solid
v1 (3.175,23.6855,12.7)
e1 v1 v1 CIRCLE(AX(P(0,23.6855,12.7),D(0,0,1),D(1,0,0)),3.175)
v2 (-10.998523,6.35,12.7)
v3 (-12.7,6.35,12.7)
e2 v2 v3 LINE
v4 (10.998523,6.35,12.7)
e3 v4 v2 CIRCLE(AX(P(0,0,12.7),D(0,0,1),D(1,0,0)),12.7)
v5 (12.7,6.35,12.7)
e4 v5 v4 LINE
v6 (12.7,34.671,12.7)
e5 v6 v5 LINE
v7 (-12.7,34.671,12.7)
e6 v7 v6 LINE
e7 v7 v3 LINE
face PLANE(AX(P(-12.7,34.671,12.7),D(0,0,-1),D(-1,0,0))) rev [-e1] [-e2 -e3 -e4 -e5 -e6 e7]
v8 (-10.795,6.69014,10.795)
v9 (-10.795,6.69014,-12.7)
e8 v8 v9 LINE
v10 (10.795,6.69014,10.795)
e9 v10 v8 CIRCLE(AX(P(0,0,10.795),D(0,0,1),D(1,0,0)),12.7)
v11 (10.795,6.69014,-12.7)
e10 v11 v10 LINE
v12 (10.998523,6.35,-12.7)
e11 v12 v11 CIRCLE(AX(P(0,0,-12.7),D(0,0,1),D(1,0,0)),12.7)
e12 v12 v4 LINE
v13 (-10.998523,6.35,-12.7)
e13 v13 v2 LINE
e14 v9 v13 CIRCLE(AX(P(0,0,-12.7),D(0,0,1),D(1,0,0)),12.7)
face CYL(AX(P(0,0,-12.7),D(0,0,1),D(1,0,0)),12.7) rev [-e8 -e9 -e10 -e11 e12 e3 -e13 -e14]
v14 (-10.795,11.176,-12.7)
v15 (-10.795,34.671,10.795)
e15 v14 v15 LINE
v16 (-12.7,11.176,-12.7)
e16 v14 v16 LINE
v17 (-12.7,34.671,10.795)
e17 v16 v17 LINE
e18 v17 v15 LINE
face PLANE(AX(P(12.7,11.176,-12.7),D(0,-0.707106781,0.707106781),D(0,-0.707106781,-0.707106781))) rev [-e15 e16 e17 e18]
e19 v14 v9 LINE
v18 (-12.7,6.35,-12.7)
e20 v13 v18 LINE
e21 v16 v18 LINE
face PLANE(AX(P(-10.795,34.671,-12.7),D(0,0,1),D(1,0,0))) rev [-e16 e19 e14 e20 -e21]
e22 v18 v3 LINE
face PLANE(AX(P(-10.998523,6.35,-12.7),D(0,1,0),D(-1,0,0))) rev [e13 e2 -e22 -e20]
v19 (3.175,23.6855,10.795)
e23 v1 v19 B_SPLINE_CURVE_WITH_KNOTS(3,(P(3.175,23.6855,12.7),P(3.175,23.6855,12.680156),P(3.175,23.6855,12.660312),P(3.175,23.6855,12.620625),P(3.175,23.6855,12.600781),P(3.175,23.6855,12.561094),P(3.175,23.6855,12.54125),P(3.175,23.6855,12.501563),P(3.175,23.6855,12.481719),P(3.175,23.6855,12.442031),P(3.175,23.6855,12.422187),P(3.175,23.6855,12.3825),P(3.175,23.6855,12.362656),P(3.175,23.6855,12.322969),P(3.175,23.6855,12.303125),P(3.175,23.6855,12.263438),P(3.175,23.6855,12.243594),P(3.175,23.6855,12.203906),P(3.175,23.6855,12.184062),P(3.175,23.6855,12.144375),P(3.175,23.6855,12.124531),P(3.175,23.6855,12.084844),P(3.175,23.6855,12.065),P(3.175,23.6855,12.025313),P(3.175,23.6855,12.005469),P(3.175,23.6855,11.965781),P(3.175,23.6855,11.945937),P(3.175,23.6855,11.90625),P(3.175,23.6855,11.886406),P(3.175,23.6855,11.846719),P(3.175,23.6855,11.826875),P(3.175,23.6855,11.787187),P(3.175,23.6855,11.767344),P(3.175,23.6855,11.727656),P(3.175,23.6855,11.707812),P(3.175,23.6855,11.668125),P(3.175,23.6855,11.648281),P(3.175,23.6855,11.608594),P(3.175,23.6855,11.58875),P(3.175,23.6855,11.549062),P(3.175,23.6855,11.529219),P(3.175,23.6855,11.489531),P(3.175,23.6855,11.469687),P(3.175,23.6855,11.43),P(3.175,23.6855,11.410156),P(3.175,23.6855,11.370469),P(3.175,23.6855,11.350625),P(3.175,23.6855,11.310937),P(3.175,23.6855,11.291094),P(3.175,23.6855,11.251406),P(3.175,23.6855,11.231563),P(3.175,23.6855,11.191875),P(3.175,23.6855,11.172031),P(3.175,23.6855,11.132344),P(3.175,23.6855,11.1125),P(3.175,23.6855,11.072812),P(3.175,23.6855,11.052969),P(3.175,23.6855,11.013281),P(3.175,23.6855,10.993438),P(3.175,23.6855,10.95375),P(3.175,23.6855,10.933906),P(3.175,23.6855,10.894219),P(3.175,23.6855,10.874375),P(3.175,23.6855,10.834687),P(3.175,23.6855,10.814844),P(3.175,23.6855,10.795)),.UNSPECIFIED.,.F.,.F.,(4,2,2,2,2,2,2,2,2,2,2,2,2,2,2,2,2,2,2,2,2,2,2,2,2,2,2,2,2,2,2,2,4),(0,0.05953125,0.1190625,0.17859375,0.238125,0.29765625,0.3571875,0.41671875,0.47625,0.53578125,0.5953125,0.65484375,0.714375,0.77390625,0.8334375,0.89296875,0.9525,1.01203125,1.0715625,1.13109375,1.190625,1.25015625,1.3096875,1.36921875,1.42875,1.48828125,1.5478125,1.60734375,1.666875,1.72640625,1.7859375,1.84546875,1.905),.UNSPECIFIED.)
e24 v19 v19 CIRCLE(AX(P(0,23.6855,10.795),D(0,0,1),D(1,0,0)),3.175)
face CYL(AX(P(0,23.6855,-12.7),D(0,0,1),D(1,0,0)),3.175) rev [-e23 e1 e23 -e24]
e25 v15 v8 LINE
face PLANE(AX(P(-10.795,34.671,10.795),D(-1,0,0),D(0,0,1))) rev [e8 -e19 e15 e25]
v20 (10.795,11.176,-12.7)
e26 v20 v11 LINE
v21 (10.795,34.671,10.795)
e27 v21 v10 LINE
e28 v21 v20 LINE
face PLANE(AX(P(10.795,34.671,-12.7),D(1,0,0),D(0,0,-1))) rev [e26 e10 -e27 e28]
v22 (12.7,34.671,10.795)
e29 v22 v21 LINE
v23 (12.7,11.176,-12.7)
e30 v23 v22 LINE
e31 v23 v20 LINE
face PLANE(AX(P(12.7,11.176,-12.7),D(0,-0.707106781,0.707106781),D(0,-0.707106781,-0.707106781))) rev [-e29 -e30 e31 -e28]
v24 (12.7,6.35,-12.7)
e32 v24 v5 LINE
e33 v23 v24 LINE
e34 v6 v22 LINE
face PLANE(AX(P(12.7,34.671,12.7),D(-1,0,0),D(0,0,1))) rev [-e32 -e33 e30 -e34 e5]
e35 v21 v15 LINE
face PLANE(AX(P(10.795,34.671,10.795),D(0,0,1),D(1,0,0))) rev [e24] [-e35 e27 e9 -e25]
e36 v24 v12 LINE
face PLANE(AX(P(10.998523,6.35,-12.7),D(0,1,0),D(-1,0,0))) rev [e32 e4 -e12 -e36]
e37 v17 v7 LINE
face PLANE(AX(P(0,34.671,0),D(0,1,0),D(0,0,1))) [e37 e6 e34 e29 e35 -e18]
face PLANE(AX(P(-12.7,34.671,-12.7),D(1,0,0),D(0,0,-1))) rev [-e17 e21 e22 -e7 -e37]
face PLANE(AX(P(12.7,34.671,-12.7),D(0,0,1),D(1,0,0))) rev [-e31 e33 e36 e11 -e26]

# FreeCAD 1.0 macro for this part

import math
import FreeCAD as App
import Part
import Sketcher
from FreeCAD import Vector
Q = App.Units.Quantity

doc = App.newDocument("Part")
body = doc.addObject("PartDesign::Body", "Body")

sketch1 = body.newObject("Sketcher::SketchObject", "Sketch")
sketch1.AttachmentSupport = (doc.getObject("XZ_Plane"), [""])
sketch1.MapMode = "FlatFace"
sketch1.addGeometry(Part.LineSegment(Vector(-12.7, -12.7, 0), Vector(-12.7, 12.7, 0)), False)
sketch1.addGeometry(Part.LineSegment(Vector(-12.7, 12.7, 0), Vector(12.7, 12.7, 0)), False)
sketch1.addGeometry(Part.LineSegment(Vector(12.7, 12.7, 0), Vector(12.7, -12.7, 0)), False)
sketch1.addGeometry(Part.LineSegment(Vector(12.7, -12.7, 0), Vector(10.795, -12.7, 0)), False)
sketch1.addGeometry(Part.LineSegment(Vector(10.795, -12.7, 0), Vector(10.795, 10.795, 0)), False)
sketch1.addGeometry(Part.LineSegment(Vector(10.795, 10.795, 0), Vector(-10.795, 10.795, 0)), False)
sketch1.addGeometry(Part.LineSegment(Vector(-10.795, 10.795, 0), Vector(-10.795, -12.7, 0)), False)
sketch1.addGeometry(Part.LineSegment(Vector(-10.795, -12.7, 0), Vector(-12.7, -12.7, 0)), False)
sketch1.addConstraint(Sketcher.Constraint("Coincident", 0, 2, 1, 1))
sketch1.addConstraint(Sketcher.Constraint("Coincident", 1, 2, 2, 1))
sketch1.addConstraint(Sketcher.Constraint("Coincident", 2, 2, 3, 1))
sketch1.addConstraint(Sketcher.Constraint("Coincident", 3, 2, 4, 1))
sketch1.addConstraint(Sketcher.Constraint("Coincident", 4, 2, 5, 1))
sketch1.addConstraint(Sketcher.Constraint("Coincident", 5, 2, 6, 1))
sketch1.addConstraint(Sketcher.Constraint("Coincident", 6, 2, 7, 1))
sketch1.addConstraint(Sketcher.Constraint("Coincident", 7, 2, 0, 1))
sketch1.addConstraint(Sketcher.Constraint("Vertical", 0))
sketch1.addConstraint(Sketcher.Constraint("Horizontal", 1))
sketch1.addConstraint(Sketcher.Constraint("Vertical", 2))
sketch1.addConstraint(Sketcher.Constraint("Horizontal", 3))
sketch1.addConstraint(Sketcher.Constraint("Vertical", 4))
sketch1.addConstraint(Sketcher.Constraint("Horizontal", 5))
sketch1.addConstraint(Sketcher.Constraint("Vertical", 6))
sketch1.addConstraint(Sketcher.Constraint("Horizontal", 7))
sketch1.addConstraint(Sketcher.Constraint("Symmetric", 0, 2, 2, 2, -1, 1))
sketch1.addConstraint(Sketcher.Constraint("Symmetric", 3, 2, 6, 2, -2))
sketch1.addConstraint(Sketcher.Constraint("Equal", 1, 0))
sketch1.addConstraint(Sketcher.Constraint("DistanceX", 1, 1, 1, 2, Q("1 in")))
sketch1.addConstraint(Sketcher.Constraint("DistanceX", 5, 2, 5, 1, Q("0.85 in")))
sketch1.addConstraint(Sketcher.Constraint("DistanceY", 4, 1, 4, 2, Q("0.925 in")))
pad1 = body.newObject("PartDesign::Pad", "Pad")
pad1.Profile = sketch1
pad1.Length = Q("1.365 in")
pad1.Reversed = True

sketch2 = body.newObject("Sketcher::SketchObject", "Sketch001")
sketch2.AttachmentSupport = (doc.getObject("YZ_Plane"), [""])
sketch2.MapMode = "FlatFace"
sketch2.AttachmentOffset = App.Placement(Vector(0, 0, -0.5 * 25.4), App.Rotation())
sketch2.addGeometry(Part.LineSegment(Vector(11.176, -12.7, 0), Vector(34.671, 10.795, 0)), False)
sketch2.addGeometry(Part.LineSegment(Vector(34.671, 10.795, 0), Vector(34.671, -12.7, 0)), False)
sketch2.addGeometry(Part.LineSegment(Vector(34.671, -12.7, 0), Vector(11.176, -12.7, 0)), False)
sketch2.addConstraint(Sketcher.Constraint("Coincident", 0, 2, 1, 1))
sketch2.addConstraint(Sketcher.Constraint("Coincident", 1, 2, 2, 1))
sketch2.addConstraint(Sketcher.Constraint("Coincident", 2, 2, 0, 1))
sketch2.addConstraint(Sketcher.Constraint("Vertical", 1))
sketch2.addConstraint(Sketcher.Constraint("Horizontal", 2))
sketch2.addConstraint(Sketcher.Constraint("Equal", 2, 1))
sketch2.addConstraint(Sketcher.Constraint("DistanceY", 1, 2, -1, 1, Q("0.5 in")))
sketch2.addConstraint(Sketcher.Constraint("DistanceX", 2, 2, 2, 1, Q("0.925 in")))
sketch2.addConstraint(Sketcher.Constraint("DistanceX", -1, 1, 2, 2, Q("0.44 in")))
pocket1 = body.newObject("PartDesign::Pocket", "Pocket")
pocket1.Profile = sketch2
pocket1.Type = "ThroughAll"
pocket1.Reversed = True

sketch3 = body.newObject("Sketcher::SketchObject", "Sketch002")
sketch3.AttachmentSupport = (doc.getObject("XY_Plane"), [""])
sketch3.MapMode = "FlatFace"
sketch3.AttachmentOffset = App.Placement(Vector(0, 0, 0.5 * 25.4), App.Rotation())
sketch3.addGeometry(Part.Circle(Vector(0, 23.6855, 0), Vector(0, 0, 1), 3.175), False)
sketch3.addConstraint(Sketcher.Constraint("PointOnObject", 0, 3, -2))
sketch3.addConstraint(Sketcher.Constraint("Diameter", 0, Q("0.25 in")))
sketch3.addConstraint(Sketcher.Constraint("DistanceY", -1, 1, 0, 3, Q("0.9325 in")))
pocket2 = body.newObject("PartDesign::Pocket", "Pocket001")
pocket2.Profile = sketch3
pocket2.Type = "ThroughAll"

sketch4 = body.newObject("Sketcher::SketchObject", "Sketch003")
sketch4.AttachmentSupport = (doc.getObject("XY_Plane"), [""])
sketch4.MapMode = "FlatFace"
sketch4.AttachmentOffset = App.Placement(Vector(0, 0, 0.5 * 25.4), App.Rotation())
sketch4.addGeometry(Part.LineSegment(Vector(-12.7, 0, 0), Vector(12.7, 0, 0)), False)
sketch4.addGeometry(Part.LineSegment(Vector(12.7, 0, 0), Vector(12.7, 6.35, 0)), False)
sketch4.addGeometry(Part.LineSegment(Vector(12.7, 6.35, 0), Vector(10.998523, 6.35, 0)), False)
sketch4.addGeometry(Part.ArcOfCircle(Part.Circle(Vector(0, 0, 0), Vector(0, 0, 1), 12.7), math.radians(30), math.radians(150)), False)
sketch4.addGeometry(Part.LineSegment(Vector(-10.998523, 6.35, 0), Vector(-12.7, 6.35, 0)), False)
sketch4.addGeometry(Part.LineSegment(Vector(-12.7, 6.35, 0), Vector(-12.7, 0, 0)), False)
sketch4.addConstraint(Sketcher.Constraint("Coincident", 0, 2, 1, 1))
sketch4.addConstraint(Sketcher.Constraint("Coincident", 1, 2, 2, 1))
sketch4.addConstraint(Sketcher.Constraint("Coincident", 2, 2, 3, 1))
sketch4.addConstraint(Sketcher.Constraint("Coincident", 3, 2, 4, 1))
sketch4.addConstraint(Sketcher.Constraint("Coincident", 4, 2, 5, 1))
sketch4.addConstraint(Sketcher.Constraint("Coincident", 5, 2, 0, 1))
sketch4.addConstraint(Sketcher.Constraint("Horizontal", 0))
sketch4.addConstraint(Sketcher.Constraint("Vertical", 1))
sketch4.addConstraint(Sketcher.Constraint("Horizontal", 2))
sketch4.addConstraint(Sketcher.Constraint("Horizontal", 4))
sketch4.addConstraint(Sketcher.Constraint("Vertical", 5))
sketch4.addConstraint(Sketcher.Constraint("Coincident", 3, 3, -1, 1))
sketch4.addConstraint(Sketcher.Constraint("Symmetric", 0, 2, 5, 2, -1, 1))
sketch4.addConstraint(Sketcher.Constraint("Horizontal", 2, 2, 3, 2))
sketch4.addConstraint(Sketcher.Constraint("Radius", 3, Q("0.5 in")))
sketch4.addConstraint(Sketcher.Constraint("DistanceX", 0, 1, 0, 2, Q("1 in")))
sketch4.addConstraint(Sketcher.Constraint("DistanceY", 1, 1, 1, 2, Q("0.25 in")))
pocket3 = body.newObject("PartDesign::Pocket", "Pocket002")
pocket3.Profile = sketch4
pocket3.Type = "ThroughAll"

doc.recompute()
